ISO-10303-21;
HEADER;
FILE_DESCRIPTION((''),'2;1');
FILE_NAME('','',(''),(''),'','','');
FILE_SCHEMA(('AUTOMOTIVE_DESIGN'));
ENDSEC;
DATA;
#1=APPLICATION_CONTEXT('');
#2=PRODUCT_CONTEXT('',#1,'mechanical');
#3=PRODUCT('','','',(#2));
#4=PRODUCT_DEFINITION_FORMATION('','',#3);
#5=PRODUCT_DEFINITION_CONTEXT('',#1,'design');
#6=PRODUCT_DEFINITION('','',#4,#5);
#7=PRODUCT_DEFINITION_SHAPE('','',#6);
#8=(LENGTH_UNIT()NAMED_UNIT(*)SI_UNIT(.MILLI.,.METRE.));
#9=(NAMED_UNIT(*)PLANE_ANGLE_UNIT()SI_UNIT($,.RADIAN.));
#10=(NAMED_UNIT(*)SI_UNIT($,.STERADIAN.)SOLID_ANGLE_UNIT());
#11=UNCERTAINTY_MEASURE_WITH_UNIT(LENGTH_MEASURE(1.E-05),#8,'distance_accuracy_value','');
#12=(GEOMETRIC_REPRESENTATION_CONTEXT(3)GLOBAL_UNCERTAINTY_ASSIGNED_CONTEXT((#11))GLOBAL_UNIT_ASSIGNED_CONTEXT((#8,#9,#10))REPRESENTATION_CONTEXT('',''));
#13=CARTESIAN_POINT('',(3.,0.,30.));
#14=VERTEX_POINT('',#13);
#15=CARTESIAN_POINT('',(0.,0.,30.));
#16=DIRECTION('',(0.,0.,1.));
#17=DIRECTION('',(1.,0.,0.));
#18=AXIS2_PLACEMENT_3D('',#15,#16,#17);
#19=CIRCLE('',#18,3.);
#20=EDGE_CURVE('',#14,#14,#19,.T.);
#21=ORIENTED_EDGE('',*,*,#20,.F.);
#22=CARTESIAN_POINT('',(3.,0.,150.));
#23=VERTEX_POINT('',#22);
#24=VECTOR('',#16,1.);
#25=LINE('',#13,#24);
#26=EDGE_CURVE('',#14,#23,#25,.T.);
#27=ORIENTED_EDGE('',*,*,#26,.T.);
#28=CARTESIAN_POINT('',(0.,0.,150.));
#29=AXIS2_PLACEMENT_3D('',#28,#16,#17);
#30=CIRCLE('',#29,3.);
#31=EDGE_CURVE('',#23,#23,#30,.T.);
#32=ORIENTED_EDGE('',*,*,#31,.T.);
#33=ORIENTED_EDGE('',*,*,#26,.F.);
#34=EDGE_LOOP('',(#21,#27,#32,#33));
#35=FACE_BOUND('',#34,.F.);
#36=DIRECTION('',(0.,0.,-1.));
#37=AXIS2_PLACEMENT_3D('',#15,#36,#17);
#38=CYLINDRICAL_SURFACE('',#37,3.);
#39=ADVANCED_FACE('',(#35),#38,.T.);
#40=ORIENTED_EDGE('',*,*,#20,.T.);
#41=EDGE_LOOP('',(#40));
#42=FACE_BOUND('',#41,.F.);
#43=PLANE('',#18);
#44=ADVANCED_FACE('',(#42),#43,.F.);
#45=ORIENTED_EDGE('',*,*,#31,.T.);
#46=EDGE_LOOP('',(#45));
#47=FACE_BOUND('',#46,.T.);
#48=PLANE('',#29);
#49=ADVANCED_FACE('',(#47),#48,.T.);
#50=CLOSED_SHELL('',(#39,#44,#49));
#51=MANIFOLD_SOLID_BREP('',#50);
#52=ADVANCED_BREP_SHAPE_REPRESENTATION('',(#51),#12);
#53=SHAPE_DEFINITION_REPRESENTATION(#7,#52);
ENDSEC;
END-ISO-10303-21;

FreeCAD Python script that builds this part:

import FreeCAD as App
import Part
import Sketcher

V = App.Vector
Q = App.Units.Quantity

doc = App.newDocument("Part")
params = doc.addObject("Spreadsheet::Sheet", "Params")
for row, (alias, value) in enumerate([
    ("sketch1_diameter", "6 mm"),
    ("pad1_length", "120 mm"),
], start=1):
    params.set(f"A{row}", alias)
    params.set(f"B{row}", "=" + value)
    params.setAlias(f"B{row}", alias)

body = doc.addObject("PartDesign::Body", "Body")

# Sketch on XY plane
sketch1 = doc.addObject("Sketcher::SketchObject", "Sketch")
body.addObject(sketch1)
sketch1.AttachmentSupport = (doc.XY_Plane, [""])
sketch1.MapMode = "FlatFace"
sketch1.AttachmentOffset = App.Placement(V(0, 0, 30), App.Rotation())
sketch1.addGeometry(Part.Circle(V(0, 0, 0), V(0, 0, 1), 3), False)
sketch1.addConstraint(Sketcher.Constraint("Coincident", 0, 3, -1, 1))
sketch1.addConstraint(Sketcher.Constraint("Diameter", 0, Q("6 mm")))
sketch1.setExpression("Constraints[1]", "Params.sketch1_diameter")
pad1 = doc.addObject("PartDesign::Pad", "Pad")
body.addObject(pad1)
pad1.Profile = sketch1
pad1.setExpression("Length", "Params.pad1_length")

doc.recompute()
